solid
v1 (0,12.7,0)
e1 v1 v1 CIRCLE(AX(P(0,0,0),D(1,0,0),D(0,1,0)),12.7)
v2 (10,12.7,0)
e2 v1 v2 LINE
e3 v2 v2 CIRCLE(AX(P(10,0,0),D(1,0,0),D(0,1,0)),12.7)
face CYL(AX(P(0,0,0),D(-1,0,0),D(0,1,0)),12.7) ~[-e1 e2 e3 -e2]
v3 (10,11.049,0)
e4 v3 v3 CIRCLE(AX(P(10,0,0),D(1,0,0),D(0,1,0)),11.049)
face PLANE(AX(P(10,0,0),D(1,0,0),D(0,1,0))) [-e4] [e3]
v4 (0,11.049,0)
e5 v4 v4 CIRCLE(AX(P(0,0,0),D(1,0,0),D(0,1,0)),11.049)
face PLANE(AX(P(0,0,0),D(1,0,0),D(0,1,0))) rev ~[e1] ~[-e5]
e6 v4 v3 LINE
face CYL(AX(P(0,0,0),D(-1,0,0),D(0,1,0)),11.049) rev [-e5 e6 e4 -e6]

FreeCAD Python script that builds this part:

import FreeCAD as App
import Part
import Sketcher
Q = App.Units.Quantity

doc = App.newDocument("Part")
params = doc.addObject("Spreadsheet::Sheet", "Params")
for row, (alias, value) in enumerate([
    ("sketch1_diameter", "1 in"),
    ("sketch1_diameter2", "0.87 in"),
    ("pad1_length", "0.3937008 in"),
], start=1):
    params.set(f"A{row}", alias)
    params.set(f"B{row}", "=" + value)
    params.setAlias(f"B{row}", alias)

body = doc.addObject("PartDesign::Body", "Body")

sketch1 = body.newObject("Sketcher::SketchObject", "Sketch")
sketch1.AttachmentSupport = (doc.getObject("YZ_Plane"), [""])
sketch1.MapMode = "FlatFace"
sketch1.addGeometry([
    Part.Circle(App.Vector(0, 0, 0), App.Vector(0, 0, 1), 13),
    Part.Circle(App.Vector(0, 0, 0), App.Vector(0, 0, 1), 11),
], False)
sketch1.addConstraint([
    Sketcher.Constraint("Coincident", 0, 3, -1, 1),
    Sketcher.Constraint("Coincident", 1, 3, -1, 1),
    Sketcher.Constraint("Diameter", 0, Q("1 in")),
    Sketcher.Constraint("Diameter", 1, Q("0.87 in")),
])
sketch1.setExpression("Constraints[2]", "Params.sketch1_diameter")
sketch1.setExpression("Constraints[3]", "Params.sketch1_diameter2")
pad1 = body.newObject("PartDesign::Pad", "Pad")
pad1.Profile = sketch1
pad1.setExpression("Length", "Params.pad1_length")

doc.recompute()
